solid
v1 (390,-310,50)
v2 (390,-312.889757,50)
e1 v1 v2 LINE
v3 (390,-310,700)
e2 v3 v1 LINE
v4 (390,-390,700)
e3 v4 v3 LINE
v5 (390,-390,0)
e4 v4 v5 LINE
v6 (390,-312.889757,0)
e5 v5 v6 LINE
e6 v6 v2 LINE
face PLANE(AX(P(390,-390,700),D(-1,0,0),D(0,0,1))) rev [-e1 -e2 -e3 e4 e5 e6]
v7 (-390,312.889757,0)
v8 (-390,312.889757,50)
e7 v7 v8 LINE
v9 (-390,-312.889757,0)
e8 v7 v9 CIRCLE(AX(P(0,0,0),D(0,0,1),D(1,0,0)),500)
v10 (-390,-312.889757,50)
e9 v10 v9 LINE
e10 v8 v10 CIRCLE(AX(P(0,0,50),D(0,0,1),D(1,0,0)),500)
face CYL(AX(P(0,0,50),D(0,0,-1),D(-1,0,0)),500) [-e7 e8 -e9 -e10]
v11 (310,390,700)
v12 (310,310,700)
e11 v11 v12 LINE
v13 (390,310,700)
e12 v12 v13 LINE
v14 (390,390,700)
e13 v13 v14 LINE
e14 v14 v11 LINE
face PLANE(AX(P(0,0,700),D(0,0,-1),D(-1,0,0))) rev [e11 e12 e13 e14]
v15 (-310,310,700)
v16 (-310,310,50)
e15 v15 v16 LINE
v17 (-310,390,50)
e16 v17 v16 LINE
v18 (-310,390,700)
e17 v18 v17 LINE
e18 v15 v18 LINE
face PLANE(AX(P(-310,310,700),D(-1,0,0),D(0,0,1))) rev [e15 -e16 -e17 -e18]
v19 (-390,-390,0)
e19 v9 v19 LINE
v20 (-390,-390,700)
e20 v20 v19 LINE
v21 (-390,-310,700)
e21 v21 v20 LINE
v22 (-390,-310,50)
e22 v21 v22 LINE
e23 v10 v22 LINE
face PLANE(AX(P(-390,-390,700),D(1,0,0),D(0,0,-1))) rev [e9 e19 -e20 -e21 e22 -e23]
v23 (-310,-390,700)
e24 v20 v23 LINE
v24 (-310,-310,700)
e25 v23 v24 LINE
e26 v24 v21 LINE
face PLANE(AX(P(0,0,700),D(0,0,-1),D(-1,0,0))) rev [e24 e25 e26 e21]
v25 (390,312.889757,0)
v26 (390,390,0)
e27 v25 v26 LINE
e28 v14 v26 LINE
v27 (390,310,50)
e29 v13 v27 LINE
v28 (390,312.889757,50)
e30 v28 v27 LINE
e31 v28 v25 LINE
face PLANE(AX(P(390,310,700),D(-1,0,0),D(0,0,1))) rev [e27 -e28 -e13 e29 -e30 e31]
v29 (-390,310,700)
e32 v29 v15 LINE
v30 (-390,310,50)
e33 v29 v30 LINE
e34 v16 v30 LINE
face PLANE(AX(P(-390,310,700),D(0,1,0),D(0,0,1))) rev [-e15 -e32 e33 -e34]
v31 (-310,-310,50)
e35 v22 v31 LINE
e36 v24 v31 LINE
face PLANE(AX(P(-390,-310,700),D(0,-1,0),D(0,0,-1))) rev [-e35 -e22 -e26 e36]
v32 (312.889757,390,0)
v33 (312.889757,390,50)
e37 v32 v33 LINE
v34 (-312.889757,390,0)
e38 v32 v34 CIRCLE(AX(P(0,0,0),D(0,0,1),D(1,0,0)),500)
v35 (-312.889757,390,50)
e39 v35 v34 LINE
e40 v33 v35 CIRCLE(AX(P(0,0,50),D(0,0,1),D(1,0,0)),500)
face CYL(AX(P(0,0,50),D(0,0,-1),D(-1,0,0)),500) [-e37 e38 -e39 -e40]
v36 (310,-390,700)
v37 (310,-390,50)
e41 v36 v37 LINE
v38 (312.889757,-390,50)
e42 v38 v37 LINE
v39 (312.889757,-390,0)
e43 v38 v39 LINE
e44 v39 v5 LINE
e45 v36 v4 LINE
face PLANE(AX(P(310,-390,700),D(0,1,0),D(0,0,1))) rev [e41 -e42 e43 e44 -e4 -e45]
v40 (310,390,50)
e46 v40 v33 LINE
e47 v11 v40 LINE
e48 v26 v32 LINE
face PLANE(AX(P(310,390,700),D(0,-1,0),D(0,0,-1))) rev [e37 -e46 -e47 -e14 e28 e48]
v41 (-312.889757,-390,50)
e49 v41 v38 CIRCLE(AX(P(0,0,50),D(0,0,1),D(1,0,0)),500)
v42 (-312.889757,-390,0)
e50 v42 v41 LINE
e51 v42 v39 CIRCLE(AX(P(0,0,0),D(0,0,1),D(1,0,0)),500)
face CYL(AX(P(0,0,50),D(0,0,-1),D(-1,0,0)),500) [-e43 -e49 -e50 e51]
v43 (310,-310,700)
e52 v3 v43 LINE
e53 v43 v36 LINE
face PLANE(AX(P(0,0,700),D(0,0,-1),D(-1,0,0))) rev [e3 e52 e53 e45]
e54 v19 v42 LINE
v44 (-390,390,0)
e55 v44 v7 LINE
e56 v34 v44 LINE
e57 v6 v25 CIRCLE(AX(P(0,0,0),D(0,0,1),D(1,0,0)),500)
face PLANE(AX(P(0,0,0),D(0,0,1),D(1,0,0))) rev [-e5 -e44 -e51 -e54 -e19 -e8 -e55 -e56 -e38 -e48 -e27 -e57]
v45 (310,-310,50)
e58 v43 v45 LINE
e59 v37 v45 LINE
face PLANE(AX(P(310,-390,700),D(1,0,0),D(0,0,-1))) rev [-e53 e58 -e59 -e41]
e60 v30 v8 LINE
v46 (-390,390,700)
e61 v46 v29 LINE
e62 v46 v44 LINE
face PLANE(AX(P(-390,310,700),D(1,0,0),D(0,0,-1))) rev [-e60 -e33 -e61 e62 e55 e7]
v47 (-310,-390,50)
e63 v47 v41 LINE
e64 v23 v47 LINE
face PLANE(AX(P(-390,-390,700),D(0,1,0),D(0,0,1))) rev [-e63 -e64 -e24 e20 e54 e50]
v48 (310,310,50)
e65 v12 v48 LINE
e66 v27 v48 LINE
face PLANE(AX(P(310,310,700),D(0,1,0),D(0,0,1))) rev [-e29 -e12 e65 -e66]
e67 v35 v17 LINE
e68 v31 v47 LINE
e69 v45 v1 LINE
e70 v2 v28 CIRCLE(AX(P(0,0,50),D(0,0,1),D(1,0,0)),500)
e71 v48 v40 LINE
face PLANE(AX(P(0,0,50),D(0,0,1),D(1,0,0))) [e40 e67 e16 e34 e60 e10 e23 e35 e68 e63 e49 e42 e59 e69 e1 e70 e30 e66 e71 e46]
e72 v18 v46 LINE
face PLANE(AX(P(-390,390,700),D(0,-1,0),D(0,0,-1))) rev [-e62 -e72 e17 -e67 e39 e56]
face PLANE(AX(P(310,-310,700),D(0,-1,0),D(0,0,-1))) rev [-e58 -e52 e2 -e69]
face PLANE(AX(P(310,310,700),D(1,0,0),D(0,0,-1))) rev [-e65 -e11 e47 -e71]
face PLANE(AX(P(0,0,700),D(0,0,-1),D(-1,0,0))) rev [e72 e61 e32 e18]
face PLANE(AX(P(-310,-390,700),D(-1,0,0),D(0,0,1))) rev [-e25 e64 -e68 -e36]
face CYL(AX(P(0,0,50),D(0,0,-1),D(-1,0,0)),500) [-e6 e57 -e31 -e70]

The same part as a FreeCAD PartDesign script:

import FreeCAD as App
import Part
import Sketcher

doc = App.newDocument("Part")
body = doc.addObject("PartDesign::Body", "Body")

sketch1 = doc.addObject("Sketcher::SketchObject", "Sketch")
body.addObject(sketch1)
sketch1.AttachmentSupport = (doc.XY_Plane, [""])
sketch1.MapMode = "FlatFace"
sketch1.addGeometry(Part.Circle(App.Vector(0, 0, 0), App.Vector(0, 0, 1), 500), False)
sketch1.addConstraint([
    Sketcher.Constraint("Coincident", 0, 3, -1, 1),
    Sketcher.Constraint("Diameter", 0, 1000.0),
])
pad1 = doc.addObject("PartDesign::Pad", "Pad")
body.addObject(pad1)
pad1.Profile = sketch1
pad1.Length = 50

sketch2 = doc.addObject("Sketcher::SketchObject", "Sketch001")
body.addObject(sketch2)
sketch2.AttachmentSupport = (doc.XY_Plane, [""])
sketch2.MapMode = "FlatFace"
sketch2.addGeometry([
    Part.LineSegment(App.Vector(310, 390, 0), App.Vector(310, 310, 0)),
    Part.LineSegment(App.Vector(310, 310, 0), App.Vector(390, 310, 0)),
    Part.LineSegment(App.Vector(390, 310, 0), App.Vector(390, 390, 0)),
    Part.LineSegment(App.Vector(390, 390, 0), App.Vector(310, 390, 0)),
], False)
sketch2.addConstraint([
    Sketcher.Constraint("Coincident", 0, 2, 1, 1),
    Sketcher.Constraint("Coincident", 1, 2, 2, 1),
    Sketcher.Constraint("Coincident", 2, 2, 3, 1),
    Sketcher.Constraint("Coincident", 3, 2, 0, 1),
    Sketcher.Constraint("Vertical", 0),
    Sketcher.Constraint("Horizontal", 1),
    Sketcher.Constraint("Vertical", 2),
    Sketcher.Constraint("Horizontal", 3),
    Sketcher.Constraint("Equal", 3, 0),
    Sketcher.Constraint("DistanceX", 1, 1, 1, 2, 80.0),
    Sketcher.Constraint("DistanceX", -1, 1, 0, 2, 310.0),
    Sketcher.Constraint("DistanceY", -1, 1, 0, 2, 310.0),
])
pad2 = doc.addObject("PartDesign::Pad", "Pad001")
body.addObject(pad2)
pad2.Profile = sketch2
pad2.Length = 700

sketch3 = doc.addObject("Sketcher::SketchObject", "Sketch002")
body.addObject(sketch3)
sketch3.AttachmentSupport = (doc.XY_Plane, [""])
sketch3.MapMode = "FlatFace"
sketch3.addGeometry([
    Part.LineSegment(App.Vector(-390, 390, 0), App.Vector(-390, 310, 0)),
    Part.LineSegment(App.Vector(-390, 310, 0), App.Vector(-310, 310, 0)),
    Part.LineSegment(App.Vector(-310, 310, 0), App.Vector(-310, 390, 0)),
    Part.LineSegment(App.Vector(-310, 390, 0), App.Vector(-390, 390, 0)),
], False)
sketch3.addConstraint([
    Sketcher.Constraint("Coincident", 0, 2, 1, 1),
    Sketcher.Constraint("Coincident", 1, 2, 2, 1),
    Sketcher.Constraint("Coincident", 2, 2, 3, 1),
    Sketcher.Constraint("Coincident", 3, 2, 0, 1),
    Sketcher.Constraint("Vertical", 0),
    Sketcher.Constraint("Horizontal", 1),
    Sketcher.Constraint("Vertical", 2),
    Sketcher.Constraint("Horizontal", 3),
    Sketcher.Constraint("Equal", 3, 0),
    Sketcher.Constraint("DistanceX", 1, 1, 1, 2, 80.0),
    Sketcher.Constraint("DistanceX", 0, 2, -1, 1, 390.0),
    Sketcher.Constraint("DistanceY", -1, 1, 0, 2, 310.0),
])
pad3 = doc.addObject("PartDesign::Pad", "Pad002")
body.addObject(pad3)
pad3.Profile = sketch3
pad3.Length = 700

sketch4 = doc.addObject("Sketcher::SketchObject", "Sketch003")
body.addObject(sketch4)
sketch4.AttachmentSupport = (doc.XY_Plane, [""])
sketch4.MapMode = "FlatFace"
sketch4.addGeometry([
    Part.LineSegment(App.Vector(-390, -310, 0), App.Vector(-390, -390, 0)),
    Part.LineSegment(App.Vector(-390, -390, 0), App.Vector(-310, -390, 0)),
    Part.LineSegment(App.Vector(-310, -390, 0), App.Vector(-310, -310, 0)),
    Part.LineSegment(App.Vector(-310, -310, 0), App.Vector(-390, -310, 0)),
], False)
sketch4.addConstraint([
    Sketcher.Constraint("Coincident", 0, 2, 1, 1),
    Sketcher.Constraint("Coincident", 1, 2, 2, 1),
    Sketcher.Constraint("Coincident", 2, 2, 3, 1),
    Sketcher.Constraint("Coincident", 3, 2, 0, 1),
    Sketcher.Constraint("Vertical", 0),
    Sketcher.Constraint("Horizontal", 1),
    Sketcher.Constraint("Vertical", 2),
    Sketcher.Constraint("Horizontal", 3),
    Sketcher.Constraint("Equal", 3, 0),
    Sketcher.Constraint("DistanceX", 1, 1, 1, 2, 80.0),
    Sketcher.Constraint("DistanceX", 0, 2, -1, 1, 390.0),
    Sketcher.Constraint("DistanceY", 0, 2, -1, 1, 390.0),
])
pad4 = doc.addObject("PartDesign::Pad", "Pad003")
body.addObject(pad4)
pad4.Profile = sketch4
pad4.Length = 700

sketch5 = doc.addObject("Sketcher::SketchObject", "Sketch004")
body.addObject(sketch5)
sketch5.AttachmentSupport = (doc.XY_Plane, [""])
sketch5.MapMode = "FlatFace"
sketch5.addGeometry([
    Part.LineSegment(App.Vector(310, -310, 0), App.Vector(310, -390, 0)),
    Part.LineSegment(App.Vector(310, -390, 0), App.Vector(390, -390, 0)),
    Part.LineSegment(App.Vector(390, -390, 0), App.Vector(390, -310, 0)),
    Part.LineSegment(App.Vector(390, -310, 0), App.Vector(310, -310, 0)),
], False)
sketch5.addConstraint([
    Sketcher.Constraint("Coincident", 0, 2, 1, 1),
    Sketcher.Constraint("Coincident", 1, 2, 2, 1),
    Sketcher.Constraint("Coincident", 2, 2, 3, 1),
    Sketcher.Constraint("Coincident", 3, 2, 0, 1),
    Sketcher.Constraint("Vertical", 0),
    Sketcher.Constraint("Horizontal", 1),
    Sketcher.Constraint("Vertical", 2),
    Sketcher.Constraint("Horizontal", 3),
    Sketcher.Constraint("Equal", 3, 0),
    Sketcher.Constraint("DistanceX", 1, 1, 1, 2, 80.0),
    Sketcher.Constraint("DistanceX", -1, 1, 0, 2, 310.0),
    Sketcher.Constraint("DistanceY", 0, 2, -1, 1, 390.0),
])
pad5 = doc.addObject("PartDesign::Pad", "Pad004")
body.addObject(pad5)
pad5.Profile = sketch5
pad5.Length = 700

doc.recompute()
